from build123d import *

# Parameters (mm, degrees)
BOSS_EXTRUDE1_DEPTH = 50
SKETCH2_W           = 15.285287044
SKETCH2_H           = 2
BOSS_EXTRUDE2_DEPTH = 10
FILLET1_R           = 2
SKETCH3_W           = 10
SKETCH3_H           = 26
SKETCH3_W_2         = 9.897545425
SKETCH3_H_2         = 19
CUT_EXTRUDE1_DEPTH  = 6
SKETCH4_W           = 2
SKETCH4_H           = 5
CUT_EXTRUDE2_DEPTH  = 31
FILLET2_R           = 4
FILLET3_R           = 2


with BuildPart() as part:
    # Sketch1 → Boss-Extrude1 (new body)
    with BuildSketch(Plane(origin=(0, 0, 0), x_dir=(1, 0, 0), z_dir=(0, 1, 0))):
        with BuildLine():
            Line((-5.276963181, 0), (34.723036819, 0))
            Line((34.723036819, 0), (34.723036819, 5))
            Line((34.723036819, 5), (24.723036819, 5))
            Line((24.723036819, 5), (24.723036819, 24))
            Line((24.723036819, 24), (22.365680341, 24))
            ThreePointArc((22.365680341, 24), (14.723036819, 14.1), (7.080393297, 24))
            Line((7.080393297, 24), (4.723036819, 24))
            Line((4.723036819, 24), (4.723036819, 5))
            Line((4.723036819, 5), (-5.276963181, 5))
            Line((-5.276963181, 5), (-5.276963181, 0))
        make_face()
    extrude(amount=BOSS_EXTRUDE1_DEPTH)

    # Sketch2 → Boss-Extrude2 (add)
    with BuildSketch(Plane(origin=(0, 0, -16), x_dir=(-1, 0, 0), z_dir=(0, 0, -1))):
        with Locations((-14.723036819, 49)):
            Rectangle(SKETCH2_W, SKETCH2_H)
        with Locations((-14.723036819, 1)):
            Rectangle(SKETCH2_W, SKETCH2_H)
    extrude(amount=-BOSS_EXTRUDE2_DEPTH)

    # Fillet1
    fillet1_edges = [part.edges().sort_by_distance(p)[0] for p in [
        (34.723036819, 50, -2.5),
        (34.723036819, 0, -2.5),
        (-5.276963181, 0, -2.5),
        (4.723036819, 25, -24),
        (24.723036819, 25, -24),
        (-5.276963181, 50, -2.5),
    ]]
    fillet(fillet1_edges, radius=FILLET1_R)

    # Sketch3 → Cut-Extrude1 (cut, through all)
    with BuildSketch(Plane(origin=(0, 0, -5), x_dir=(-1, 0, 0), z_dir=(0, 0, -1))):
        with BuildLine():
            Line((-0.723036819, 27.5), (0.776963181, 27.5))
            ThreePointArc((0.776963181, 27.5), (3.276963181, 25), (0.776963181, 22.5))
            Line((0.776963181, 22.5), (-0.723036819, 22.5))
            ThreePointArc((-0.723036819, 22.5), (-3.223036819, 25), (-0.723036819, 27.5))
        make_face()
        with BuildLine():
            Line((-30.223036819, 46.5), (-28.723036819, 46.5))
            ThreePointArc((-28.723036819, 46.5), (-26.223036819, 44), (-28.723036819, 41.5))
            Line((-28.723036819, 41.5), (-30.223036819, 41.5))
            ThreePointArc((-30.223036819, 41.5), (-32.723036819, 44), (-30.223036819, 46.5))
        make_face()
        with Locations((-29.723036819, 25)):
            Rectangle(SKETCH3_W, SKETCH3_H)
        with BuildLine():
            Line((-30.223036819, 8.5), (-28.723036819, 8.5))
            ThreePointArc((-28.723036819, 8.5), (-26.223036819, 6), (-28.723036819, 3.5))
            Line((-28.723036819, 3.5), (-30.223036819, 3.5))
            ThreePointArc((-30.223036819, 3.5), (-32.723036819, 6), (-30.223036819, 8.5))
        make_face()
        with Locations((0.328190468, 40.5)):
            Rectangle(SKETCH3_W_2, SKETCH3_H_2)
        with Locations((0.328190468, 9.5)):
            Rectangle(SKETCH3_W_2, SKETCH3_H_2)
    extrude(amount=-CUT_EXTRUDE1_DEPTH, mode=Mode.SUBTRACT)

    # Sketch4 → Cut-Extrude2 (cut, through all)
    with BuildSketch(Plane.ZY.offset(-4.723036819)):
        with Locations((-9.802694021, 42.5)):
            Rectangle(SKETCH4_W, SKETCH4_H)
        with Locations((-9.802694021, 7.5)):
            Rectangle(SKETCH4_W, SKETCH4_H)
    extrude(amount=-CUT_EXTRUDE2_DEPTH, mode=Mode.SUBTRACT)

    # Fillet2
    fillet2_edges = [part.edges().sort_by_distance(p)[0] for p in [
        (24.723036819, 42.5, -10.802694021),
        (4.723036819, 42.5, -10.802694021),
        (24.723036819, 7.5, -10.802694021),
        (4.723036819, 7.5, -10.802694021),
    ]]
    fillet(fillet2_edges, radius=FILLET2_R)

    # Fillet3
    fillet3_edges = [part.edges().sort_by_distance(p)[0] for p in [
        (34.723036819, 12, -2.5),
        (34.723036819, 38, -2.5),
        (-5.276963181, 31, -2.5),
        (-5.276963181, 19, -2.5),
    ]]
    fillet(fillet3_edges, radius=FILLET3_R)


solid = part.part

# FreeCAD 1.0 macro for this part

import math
import FreeCAD as App
import Part
import Sketcher
from FreeCAD import Vector
Q = App.Units.Quantity


def edges_at(feature, points):
    """Names of the edges that pass closest to the given points."""
    edges = feature.Shape.Edges
    near = lambda p: min(range(len(edges)), key=lambda i: edges[i].distToShape(Part.Vertex(*p))[0])
    return sorted({f"Edge{near(p) + 1}" for p in points})


def add_polygon(sketch, points):
    """Adds a closed chain of lines whose ends are joined by coincident constraints."""
    first, n = sketch.GeometryCount, len(points)
    for a, b in zip(points, points[1:] + points[:1]):
        sketch.addGeometry(Part.LineSegment(App.Vector(*a, 0), App.Vector(*b, 0)), False)
    for i in range(n):
        sketch.addConstraint(Sketcher.Constraint("Coincident", first + i, 2, first + (i + 1) % n, 1))

doc = App.newDocument("Part")
body = doc.addObject("PartDesign::Body", "Body")

sketch1 = body.newObject("Sketcher::SketchObject", "Sketch")
sketch1.AttachmentSupport = (doc.getObject("XZ_Plane"), [""])
sketch1.MapMode = "FlatFace"
sketch1.addGeometry(Part.LineSegment(Vector(-5.3, 0, 0), Vector(34.7, 0, 0)), False)
sketch1.addGeometry(Part.LineSegment(Vector(34.7, 0, 0), Vector(34.7, -5, 0)), False)
sketch1.addGeometry(Part.LineSegment(Vector(34.7, -5, 0), Vector(24.7, -5, 0)), False)
sketch1.addGeometry(Part.LineSegment(Vector(24.7, -5, 0), Vector(24.7, -24, 0)), False)
sketch1.addGeometry(Part.LineSegment(Vector(24.7, -24, 0), Vector(22.4, -24, 0)), False)
sketch1.addGeometry(Part.ArcOfCircle(Part.Circle(Vector(14.7, -22, 0), Vector(0, 0, 1), 7.9), math.radians(-15), math.radians(195)), False)
sketch1.addGeometry(Part.LineSegment(Vector(7.1, -24, 0), Vector(4.7, -24, 0)), False)
sketch1.addGeometry(Part.LineSegment(Vector(4.7, -24, 0), Vector(4.7, -5, 0)), False)
sketch1.addGeometry(Part.LineSegment(Vector(4.7, -5, 0), Vector(-5.3, -5, 0)), False)
sketch1.addGeometry(Part.LineSegment(Vector(-5.3, -5, 0), Vector(-5.3, 0, 0)), False)
sketch1.addConstraint(Sketcher.Constraint("Coincident", 0, 2, 1, 1))
sketch1.addConstraint(Sketcher.Constraint("Coincident", 1, 2, 2, 1))
sketch1.addConstraint(Sketcher.Constraint("Coincident", 2, 2, 3, 1))
sketch1.addConstraint(Sketcher.Constraint("Coincident", 3, 2, 4, 1))
sketch1.addConstraint(Sketcher.Constraint("Coincident", 4, 2, 5, 1))
sketch1.addConstraint(Sketcher.Constraint("Coincident", 5, 2, 6, 1))
sketch1.addConstraint(Sketcher.Constraint("Coincident", 6, 2, 7, 1))
sketch1.addConstraint(Sketcher.Constraint("Coincident", 7, 2, 8, 1))
sketch1.addConstraint(Sketcher.Constraint("Coincident", 8, 2, 9, 1))
sketch1.addConstraint(Sketcher.Constraint("Coincident", 9, 2, 0, 1))
sketch1.addConstraint(Sketcher.Constraint("Horizontal", 0))
sketch1.addConstraint(Sketcher.Constraint("Vertical", 1))
sketch1.addConstraint(Sketcher.Constraint("Horizontal", 2))
sketch1.addConstraint(Sketcher.Constraint("Vertical", 3))
sketch1.addConstraint(Sketcher.Constraint("Horizontal", 4))
sketch1.addConstraint(Sketcher.Constraint("Horizontal", 6))
sketch1.addConstraint(Sketcher.Constraint("Vertical", 7))
sketch1.addConstraint(Sketcher.Constraint("Horizontal", 8))
sketch1.addConstraint(Sketcher.Constraint("Vertical", 9))
sketch1.addConstraint(Sketcher.Constraint("PointOnObject", 0, 2, -1))
sketch1.addConstraint(Sketcher.Constraint("Horizontal", 4, 2, 5, 2))
sketch1.addConstraint(Sketcher.Constraint("Horizontal", 2, 2, 7, 2))
sketch1.addConstraint(Sketcher.Constraint("Equal", 4, 6))
sketch1.addConstraint(Sketcher.Constraint("Equal", 2, 8))
sketch1.addConstraint(Sketcher.Constraint("Radius", 5, Q("7.9 mm")))
sketch1.addConstraint(Sketcher.Constraint("DistanceX", 0, 1, 0, 2, Q("40 mm")))
sketch1.addConstraint(Sketcher.Constraint("DistanceX", 2, 2, 2, 1, Q("10 mm")))
sketch1.addConstraint(Sketcher.Constraint("DistanceY", 1, 2, 1, 1, Q("5 mm")))
sketch1.addConstraint(Sketcher.Constraint("DistanceY", 3, 2, 3, 1, Q("19 mm")))
sketch1.addConstraint(Sketcher.Constraint("DistanceY", 5, 3, -1, 1, Q("22 mm")))
sketch1.addConstraint(Sketcher.Constraint("DistanceX", -1, 1, 4, 2, Q("22.36568 mm")))
pad1 = body.newObject("PartDesign::Pad", "Pad")
pad1.Profile = sketch1
pad1.Length = 50
pad1.Reversed = True

sketch2 = body.newObject("Sketcher::SketchObject", "Sketch001")
sketch2.AttachmentSupport = (doc.getObject("XY_Plane"), [""])
sketch2.MapMode = "FlatFace"
sketch2.AttachmentOffset = App.Placement(Vector(0, 0, -16), App.Rotation())
add_polygon(sketch2, [(22.4, 50), (22.4, 48), (7.1, 48), (7.1, 50)])
add_polygon(sketch2, [(22.4, 2), (22.4, 0), (7.1, 0), (7.1, 2)])
sketch2.addConstraint(Sketcher.Constraint("Vertical", 0))
sketch2.addConstraint(Sketcher.Constraint("Horizontal", 1))
sketch2.addConstraint(Sketcher.Constraint("Vertical", 2))
sketch2.addConstraint(Sketcher.Constraint("Horizontal", 3))
sketch2.addConstraint(Sketcher.Constraint("Vertical", 4))
sketch2.addConstraint(Sketcher.Constraint("Horizontal", 5))
sketch2.addConstraint(Sketcher.Constraint("Vertical", 6))
sketch2.addConstraint(Sketcher.Constraint("Horizontal", 7))
sketch2.addConstraint(Sketcher.Constraint("PointOnObject", 4, 2, -1))
sketch2.addConstraint(Sketcher.Constraint("Vertical", 3, 2, 4, 2))
sketch2.addConstraint(Sketcher.Constraint("Vertical", 2, 2, 5, 2))
sketch2.addConstraint(Sketcher.Constraint("Equal", 2, 4))
sketch2.addConstraint(Sketcher.Constraint("DistanceY", 0, 2, 0, 1, Q("2 mm")))
sketch2.addConstraint(Sketcher.Constraint("DistanceY", -1, 1, 0, 2, Q("48 mm")))
sketch2.addConstraint(Sketcher.Constraint("DistanceX", 1, 2, 1, 1, Q("15.285287 mm")))
sketch2.addConstraint(Sketcher.Constraint("DistanceX", -1, 1, 0, 2, Q("22.36568 mm")))
pad2 = body.newObject("PartDesign::Pad", "Pad001")
pad2.Profile = sketch2
pad2.Length = 10
doc.recompute()

fillet = body.newObject("PartDesign::Fillet", "Fillet")
fillet.Base = (pad2, edges_at(pad2, [
    (34.723, 50, -2.5),
    (34.723, 0, -2.5),
    (-5.277, 0, -2.5),
    (4.723, 25, -24),
    (24.723, 25, -24),
    (-5.277, 50, -2.5),
]))
fillet.Radius = 2

sketch3 = body.newObject("Sketcher::SketchObject", "Sketch002")
sketch3.AttachmentSupport = (doc.getObject("XY_Plane"), [""])
sketch3.MapMode = "FlatFace"
sketch3.AttachmentOffset = App.Placement(Vector(0, 0, -5), App.Rotation())
sketch3.addGeometry(Part.LineSegment(Vector(-0.8, 27.5, 0), Vector(0.7, 27.5, 0)), False)
sketch3.addGeometry(Part.ArcOfCircle(Part.Circle(Vector(0.7, 25, 0), Vector(0, 0, 1), 2.5), math.radians(-90), math.radians(90)), False)
sketch3.addGeometry(Part.LineSegment(Vector(0.7, 22.5, 0), Vector(-0.8, 22.5, 0)), False)
sketch3.addGeometry(Part.ArcOfCircle(Part.Circle(Vector(-0.8, 25, 0), Vector(0, 0, 1), 2.5), math.radians(90), math.radians(270)), False)
sketch3.addGeometry(Part.LineSegment(Vector(28.7, 46.5, 0), Vector(30.2, 46.5, 0)), False)
sketch3.addGeometry(Part.ArcOfCircle(Part.Circle(Vector(30.2, 44, 0), Vector(0, 0, 1), 2.5), math.radians(-90), math.radians(90)), False)
sketch3.addGeometry(Part.LineSegment(Vector(30.2, 41.5, 0), Vector(28.7, 41.5, 0)), False)
sketch3.addGeometry(Part.ArcOfCircle(Part.Circle(Vector(28.7, 44, 0), Vector(0, 0, 1), 2.5), math.radians(90), math.radians(270)), False)
add_polygon(sketch3, [(34.7, 38), (34.7, 12), (24.7, 12), (24.7, 38)])
sketch3.addGeometry(Part.LineSegment(Vector(28.7, 8.5, 0), Vector(30.2, 8.5, 0)), False)
sketch3.addGeometry(Part.ArcOfCircle(Part.Circle(Vector(30.2, 6, 0), Vector(0, 0, 1), 2.5), math.radians(-90), math.radians(90)), False)
sketch3.addGeometry(Part.LineSegment(Vector(30.2, 3.5, 0), Vector(28.7, 3.5, 0)), False)
sketch3.addGeometry(Part.ArcOfCircle(Part.Circle(Vector(28.7, 6, 0), Vector(0, 0, 1), 2.5), math.radians(90), math.radians(270)), False)
add_polygon(sketch3, [(4.6, 50), (4.6, 31), (-5.3, 31), (-5.3, 50)])
add_polygon(sketch3, [(4.6, 19), (4.6, 0), (-5.3, 0), (-5.3, 19)])
sketch3.addConstraint(Sketcher.Constraint("Tangent", 0, 2, 1, 2))
sketch3.addConstraint(Sketcher.Constraint("Tangent", 1, 1, 2, 1))
sketch3.addConstraint(Sketcher.Constraint("Tangent", 2, 2, 3, 2))
sketch3.addConstraint(Sketcher.Constraint("Tangent", 3, 1, 0, 1))
sketch3.addConstraint(Sketcher.Constraint("Tangent", 4, 2, 5, 2))
sketch3.addConstraint(Sketcher.Constraint("Tangent", 5, 1, 6, 1))
sketch3.addConstraint(Sketcher.Constraint("Tangent", 6, 2, 7, 2))
sketch3.addConstraint(Sketcher.Constraint("Tangent", 7, 1, 4, 1))
sketch3.addConstraint(Sketcher.Constraint("Tangent", 12, 2, 13, 2))
sketch3.addConstraint(Sketcher.Constraint("Tangent", 13, 1, 14, 1))
sketch3.addConstraint(Sketcher.Constraint("Tangent", 14, 2, 15, 2))
sketch3.addConstraint(Sketcher.Constraint("Tangent", 15, 1, 12, 1))
sketch3.addConstraint(Sketcher.Constraint("Horizontal", 0))
sketch3.addConstraint(Sketcher.Constraint("Horizontal", 2))
sketch3.addConstraint(Sketcher.Constraint("Horizontal", 4))
sketch3.addConstraint(Sketcher.Constraint("Horizontal", 6))
sketch3.addConstraint(Sketcher.Constraint("Vertical", 8))
sketch3.addConstraint(Sketcher.Constraint("Horizontal", 9))
sketch3.addConstraint(Sketcher.Constraint("Vertical", 10))
sketch3.addConstraint(Sketcher.Constraint("Horizontal", 11))
sketch3.addConstraint(Sketcher.Constraint("Horizontal", 12))
sketch3.addConstraint(Sketcher.Constraint("Horizontal", 14))
sketch3.addConstraint(Sketcher.Constraint("Vertical", 16))
sketch3.addConstraint(Sketcher.Constraint("Horizontal", 17))
sketch3.addConstraint(Sketcher.Constraint("Vertical", 18))
sketch3.addConstraint(Sketcher.Constraint("Horizontal", 19))
sketch3.addConstraint(Sketcher.Constraint("Vertical", 20))
sketch3.addConstraint(Sketcher.Constraint("Horizontal", 21))
sketch3.addConstraint(Sketcher.Constraint("Vertical", 22))
sketch3.addConstraint(Sketcher.Constraint("Horizontal", 23))
sketch3.addConstraint(Sketcher.Constraint("Equal", 3, 5))
sketch3.addConstraint(Sketcher.Constraint("Equal", 7, 13))
sketch3.addConstraint(Sketcher.Constraint("PointOnObject", 20, 2, -1))
sketch3.addConstraint(Sketcher.Constraint("Vertical", 5, 3, 13, 3))
sketch3.addConstraint(Sketcher.Constraint("Vertical", 7, 3, 15, 3))
sketch3.addConstraint(Sketcher.Constraint("Vertical", 19, 2, 20, 2))
sketch3.addConstraint(Sketcher.Constraint("Vertical", 18, 2, 21, 2))
sketch3.addConstraint(Sketcher.Constraint("Equal", 2, 4))
sketch3.addConstraint(Sketcher.Constraint("Equal", 18, 20))
sketch3.addConstraint(Sketcher.Constraint("Radius", 1, Q("2.5 mm")))
sketch3.addConstraint(Sketcher.Constraint("DistanceX", 9, 2, 9, 1, Q("10 mm")))
sketch3.addConstraint(Sketcher.Constraint("DistanceY", 8, 2, 8, 1, Q("26 mm")))
sketch3.addConstraint(Sketcher.Constraint("DistanceY", 16, 2, 16, 1, Q("19 mm")))
sketch3.addConstraint(Sketcher.Constraint("DistanceX", 0, 1, 0, 2, Q("1.5 mm")))
sketch3.addConstraint(Sketcher.Constraint("DistanceY", -1, 1, 1, 3, Q("25 mm")))
sketch3.addConstraint(Sketcher.Constraint("DistanceY", -1, 1, 5, 3, Q("44 mm")))
sketch3.addConstraint(Sketcher.Constraint("DistanceY", -1, 1, 13, 3, Q("6 mm")))
sketch3.addConstraint(Sketcher.Constraint("DistanceY", -1, 1, 8, 2, Q("12 mm")))
sketch3.addConstraint(Sketcher.Constraint("DistanceY", -1, 1, 16, 2, Q("31 mm")))
sketch3.addConstraint(Sketcher.Constraint("DistanceX", 3, 3, 5, 3, Q("31 mm")))
sketch3.addConstraint(Sketcher.Constraint("DistanceX", 15, 3, 8, 2, Q("6 mm")))
sketch3.addConstraint(Sketcher.Constraint("DistanceX", 17, 2, 0, 2, Q("6 mm")))
sketch3.addConstraint(Sketcher.Constraint("DistanceX", 17, 2, 17, 1, Q("9.897545 mm")))
sketch3.addConstraint(Sketcher.Constraint("DistanceX", -1, 1, 1, 3, Q("0.723037 mm")))
pocket1 = body.newObject("PartDesign::Pocket", "Pocket")
pocket1.Profile = sketch3
pocket1.Type = "ThroughAll"
pocket1.Reversed = True

sketch4 = body.newObject("Sketcher::SketchObject", "Sketch003")
sketch4.AttachmentSupport = (doc.getObject("YZ_Plane"), [""])
sketch4.MapMode = "FlatFace"
sketch4.AttachmentOffset = App.Placement(Vector(0, 0, 4.723037), App.Rotation())
add_polygon(sketch4, [(45, -10.8), (40, -10.8), (40, -8.8), (45, -8.8)])
add_polygon(sketch4, [(10, -10.8), (5, -10.8), (5, -8.8), (10, -8.8)])
sketch4.addConstraint(Sketcher.Constraint("Horizontal", 0))
sketch4.addConstraint(Sketcher.Constraint("Vertical", 1))
sketch4.addConstraint(Sketcher.Constraint("Horizontal", 2))
sketch4.addConstraint(Sketcher.Constraint("Vertical", 3))
sketch4.addConstraint(Sketcher.Constraint("Horizontal", 4))
sketch4.addConstraint(Sketcher.Constraint("Vertical", 5))
sketch4.addConstraint(Sketcher.Constraint("Horizontal", 6))
sketch4.addConstraint(Sketcher.Constraint("Vertical", 7))
sketch4.addConstraint(Sketcher.Constraint("Horizontal", 3, 2, 4, 2))
sketch4.addConstraint(Sketcher.Constraint("Horizontal", 2, 2, 5, 2))
sketch4.addConstraint(Sketcher.Constraint("Equal", 2, 4))
sketch4.addConstraint(Sketcher.Constraint("DistanceX", 0, 2, 0, 1, Q("5 mm")))
sketch4.addConstraint(Sketcher.Constraint("DistanceY", 1, 1, 1, 2, Q("2 mm")))
sketch4.addConstraint(Sketcher.Constraint("DistanceX", -1, 1, 0, 2, Q("40 mm")))
sketch4.addConstraint(Sketcher.Constraint("DistanceX", -1, 1, 4, 2, Q("5 mm")))
sketch4.addConstraint(Sketcher.Constraint("DistanceY", 0, 2, -1, 1, Q("10.802694 mm")))
pocket2 = body.newObject("PartDesign::Pocket", "Pocket001")
pocket2.Profile = sketch4
pocket2.Type = "ThroughAll"
pocket2.Reversed = True
doc.recompute()

fillet2 = body.newObject("PartDesign::Fillet", "Fillet001")
fillet2.Base = (pocket2, edges_at(pocket2, [
    (24.723, 42.5, -10.803),
    (4.723, 42.5, -10.803),
    (24.723, 7.5, -10.803),
    (4.723, 7.5, -10.803),
]))
fillet2.Radius = 4
doc.recompute()

fillet3 = body.newObject("PartDesign::Fillet", "Fillet002")
fillet3.Base = (fillet2, edges_at(fillet2, [
    (34.723, 12, -2.5),
    (34.723, 38, -2.5),
    (-5.277, 31, -2.5),
    (-5.277, 19, -2.5),
]))
fillet3.Radius = 2

doc.recompute()
